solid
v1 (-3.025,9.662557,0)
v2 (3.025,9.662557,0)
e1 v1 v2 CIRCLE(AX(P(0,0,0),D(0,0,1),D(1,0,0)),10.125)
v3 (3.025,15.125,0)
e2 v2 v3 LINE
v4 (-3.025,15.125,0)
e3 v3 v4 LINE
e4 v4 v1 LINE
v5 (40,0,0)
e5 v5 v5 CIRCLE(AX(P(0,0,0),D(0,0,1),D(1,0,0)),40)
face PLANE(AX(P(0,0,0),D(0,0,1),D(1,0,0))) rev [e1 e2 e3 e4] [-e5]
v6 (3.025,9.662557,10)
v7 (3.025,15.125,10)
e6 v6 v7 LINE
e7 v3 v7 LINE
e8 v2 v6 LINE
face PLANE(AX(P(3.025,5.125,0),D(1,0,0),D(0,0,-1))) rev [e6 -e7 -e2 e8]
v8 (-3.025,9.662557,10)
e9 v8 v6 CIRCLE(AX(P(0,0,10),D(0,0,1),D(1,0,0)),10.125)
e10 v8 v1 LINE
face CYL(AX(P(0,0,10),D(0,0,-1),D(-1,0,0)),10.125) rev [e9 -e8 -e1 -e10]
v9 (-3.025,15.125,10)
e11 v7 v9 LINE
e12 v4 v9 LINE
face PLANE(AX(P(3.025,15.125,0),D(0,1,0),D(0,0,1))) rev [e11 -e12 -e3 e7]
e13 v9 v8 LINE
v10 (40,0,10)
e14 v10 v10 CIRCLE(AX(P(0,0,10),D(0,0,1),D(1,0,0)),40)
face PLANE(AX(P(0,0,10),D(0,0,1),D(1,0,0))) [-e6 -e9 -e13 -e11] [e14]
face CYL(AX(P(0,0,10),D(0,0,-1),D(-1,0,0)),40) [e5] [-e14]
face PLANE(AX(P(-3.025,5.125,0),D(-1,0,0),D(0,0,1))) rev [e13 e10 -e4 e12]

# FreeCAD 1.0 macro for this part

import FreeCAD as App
import Part
import Sketcher
Q = App.Units.Quantity


def add_polygon(sketch, points):
    """Adds a closed chain of lines whose ends are joined by coincident constraints."""
    first, n = sketch.GeometryCount, len(points)
    for a, b in zip(points, points[1:] + points[:1]):
        sketch.addGeometry(Part.LineSegment(App.Vector(*a, 0), App.Vector(*b, 0)), False)
    for i in range(n):
        sketch.addConstraint(Sketcher.Constraint("Coincident", first + i, 2, first + (i + 1) % n, 1))

doc = App.newDocument("Part")
body = doc.addObject("PartDesign::Body", "Body")

# Sketch on XY plane
sketch1 = body.newObject("Sketcher::SketchObject", "Sketch")
sketch1.AttachmentSupport = (doc.getObject("XY_Plane"), [""])
sketch1.MapMode = "FlatFace"
sketch1.addGeometry(Part.Circle(App.Vector(0, 0, 0), App.Vector(0, 0, 1), 40), False)
sketch1.addGeometry(Part.Circle(App.Vector(0, 0, 0), App.Vector(0, 0, 1), 10.125), False)
sketch1.addConstraint(Sketcher.Constraint("Coincident", 0, 3, -1, 1))
sketch1.addConstraint(Sketcher.Constraint("Coincident", 1, 3, -1, 1))
sketch1.addConstraint(Sketcher.Constraint("Diameter", 0, Q("80 mm")))
sketch1.addConstraint(Sketcher.Constraint("Diameter", 1, Q("20.25 mm")))
pad1 = body.newObject("PartDesign::Pad", "Pad")
pad1.Profile = sketch1
pad1.Length = 10

# Sketch on XY plane
sketch2 = body.newObject("Sketcher::SketchObject", "Sketch001")
sketch2.AttachmentSupport = (doc.getObject("XY_Plane"), [""])
sketch2.MapMode = "FlatFace"
sketch2.AttachmentOffset = App.Placement(App.Vector(0, 0, 10), App.Rotation())
add_polygon(sketch2, [(-3.025, 15.125), (-3.025, 5.125), (3.025, 5.125), (3.025, 15.125)])  # lines 0-3
sketch2.addConstraint(Sketcher.Constraint("Vertical", 0))
sketch2.addConstraint(Sketcher.Constraint("Horizontal", 1))
sketch2.addConstraint(Sketcher.Constraint("Vertical", 2))
sketch2.addConstraint(Sketcher.Constraint("Horizontal", 3))
sketch2.addConstraint(Sketcher.Constraint("DistanceY", 0, 2, 0, 1, Q("10 mm")))
sketch2.addConstraint(Sketcher.Constraint("DistanceX", 1, 1, 1, 2, Q("6.05 mm")))
sketch2.addConstraint(Sketcher.Constraint("DistanceX", 0, 2, -1, 1, Q("3.025 mm")))
sketch2.addConstraint(Sketcher.Constraint("DistanceY", -1, 1, 0, 2, Q("5.125 mm")))
pocket1 = body.newObject("PartDesign::Pocket", "Pocket")
pocket1.Profile = sketch2
pocket1.Length = 10

doc.recompute()
